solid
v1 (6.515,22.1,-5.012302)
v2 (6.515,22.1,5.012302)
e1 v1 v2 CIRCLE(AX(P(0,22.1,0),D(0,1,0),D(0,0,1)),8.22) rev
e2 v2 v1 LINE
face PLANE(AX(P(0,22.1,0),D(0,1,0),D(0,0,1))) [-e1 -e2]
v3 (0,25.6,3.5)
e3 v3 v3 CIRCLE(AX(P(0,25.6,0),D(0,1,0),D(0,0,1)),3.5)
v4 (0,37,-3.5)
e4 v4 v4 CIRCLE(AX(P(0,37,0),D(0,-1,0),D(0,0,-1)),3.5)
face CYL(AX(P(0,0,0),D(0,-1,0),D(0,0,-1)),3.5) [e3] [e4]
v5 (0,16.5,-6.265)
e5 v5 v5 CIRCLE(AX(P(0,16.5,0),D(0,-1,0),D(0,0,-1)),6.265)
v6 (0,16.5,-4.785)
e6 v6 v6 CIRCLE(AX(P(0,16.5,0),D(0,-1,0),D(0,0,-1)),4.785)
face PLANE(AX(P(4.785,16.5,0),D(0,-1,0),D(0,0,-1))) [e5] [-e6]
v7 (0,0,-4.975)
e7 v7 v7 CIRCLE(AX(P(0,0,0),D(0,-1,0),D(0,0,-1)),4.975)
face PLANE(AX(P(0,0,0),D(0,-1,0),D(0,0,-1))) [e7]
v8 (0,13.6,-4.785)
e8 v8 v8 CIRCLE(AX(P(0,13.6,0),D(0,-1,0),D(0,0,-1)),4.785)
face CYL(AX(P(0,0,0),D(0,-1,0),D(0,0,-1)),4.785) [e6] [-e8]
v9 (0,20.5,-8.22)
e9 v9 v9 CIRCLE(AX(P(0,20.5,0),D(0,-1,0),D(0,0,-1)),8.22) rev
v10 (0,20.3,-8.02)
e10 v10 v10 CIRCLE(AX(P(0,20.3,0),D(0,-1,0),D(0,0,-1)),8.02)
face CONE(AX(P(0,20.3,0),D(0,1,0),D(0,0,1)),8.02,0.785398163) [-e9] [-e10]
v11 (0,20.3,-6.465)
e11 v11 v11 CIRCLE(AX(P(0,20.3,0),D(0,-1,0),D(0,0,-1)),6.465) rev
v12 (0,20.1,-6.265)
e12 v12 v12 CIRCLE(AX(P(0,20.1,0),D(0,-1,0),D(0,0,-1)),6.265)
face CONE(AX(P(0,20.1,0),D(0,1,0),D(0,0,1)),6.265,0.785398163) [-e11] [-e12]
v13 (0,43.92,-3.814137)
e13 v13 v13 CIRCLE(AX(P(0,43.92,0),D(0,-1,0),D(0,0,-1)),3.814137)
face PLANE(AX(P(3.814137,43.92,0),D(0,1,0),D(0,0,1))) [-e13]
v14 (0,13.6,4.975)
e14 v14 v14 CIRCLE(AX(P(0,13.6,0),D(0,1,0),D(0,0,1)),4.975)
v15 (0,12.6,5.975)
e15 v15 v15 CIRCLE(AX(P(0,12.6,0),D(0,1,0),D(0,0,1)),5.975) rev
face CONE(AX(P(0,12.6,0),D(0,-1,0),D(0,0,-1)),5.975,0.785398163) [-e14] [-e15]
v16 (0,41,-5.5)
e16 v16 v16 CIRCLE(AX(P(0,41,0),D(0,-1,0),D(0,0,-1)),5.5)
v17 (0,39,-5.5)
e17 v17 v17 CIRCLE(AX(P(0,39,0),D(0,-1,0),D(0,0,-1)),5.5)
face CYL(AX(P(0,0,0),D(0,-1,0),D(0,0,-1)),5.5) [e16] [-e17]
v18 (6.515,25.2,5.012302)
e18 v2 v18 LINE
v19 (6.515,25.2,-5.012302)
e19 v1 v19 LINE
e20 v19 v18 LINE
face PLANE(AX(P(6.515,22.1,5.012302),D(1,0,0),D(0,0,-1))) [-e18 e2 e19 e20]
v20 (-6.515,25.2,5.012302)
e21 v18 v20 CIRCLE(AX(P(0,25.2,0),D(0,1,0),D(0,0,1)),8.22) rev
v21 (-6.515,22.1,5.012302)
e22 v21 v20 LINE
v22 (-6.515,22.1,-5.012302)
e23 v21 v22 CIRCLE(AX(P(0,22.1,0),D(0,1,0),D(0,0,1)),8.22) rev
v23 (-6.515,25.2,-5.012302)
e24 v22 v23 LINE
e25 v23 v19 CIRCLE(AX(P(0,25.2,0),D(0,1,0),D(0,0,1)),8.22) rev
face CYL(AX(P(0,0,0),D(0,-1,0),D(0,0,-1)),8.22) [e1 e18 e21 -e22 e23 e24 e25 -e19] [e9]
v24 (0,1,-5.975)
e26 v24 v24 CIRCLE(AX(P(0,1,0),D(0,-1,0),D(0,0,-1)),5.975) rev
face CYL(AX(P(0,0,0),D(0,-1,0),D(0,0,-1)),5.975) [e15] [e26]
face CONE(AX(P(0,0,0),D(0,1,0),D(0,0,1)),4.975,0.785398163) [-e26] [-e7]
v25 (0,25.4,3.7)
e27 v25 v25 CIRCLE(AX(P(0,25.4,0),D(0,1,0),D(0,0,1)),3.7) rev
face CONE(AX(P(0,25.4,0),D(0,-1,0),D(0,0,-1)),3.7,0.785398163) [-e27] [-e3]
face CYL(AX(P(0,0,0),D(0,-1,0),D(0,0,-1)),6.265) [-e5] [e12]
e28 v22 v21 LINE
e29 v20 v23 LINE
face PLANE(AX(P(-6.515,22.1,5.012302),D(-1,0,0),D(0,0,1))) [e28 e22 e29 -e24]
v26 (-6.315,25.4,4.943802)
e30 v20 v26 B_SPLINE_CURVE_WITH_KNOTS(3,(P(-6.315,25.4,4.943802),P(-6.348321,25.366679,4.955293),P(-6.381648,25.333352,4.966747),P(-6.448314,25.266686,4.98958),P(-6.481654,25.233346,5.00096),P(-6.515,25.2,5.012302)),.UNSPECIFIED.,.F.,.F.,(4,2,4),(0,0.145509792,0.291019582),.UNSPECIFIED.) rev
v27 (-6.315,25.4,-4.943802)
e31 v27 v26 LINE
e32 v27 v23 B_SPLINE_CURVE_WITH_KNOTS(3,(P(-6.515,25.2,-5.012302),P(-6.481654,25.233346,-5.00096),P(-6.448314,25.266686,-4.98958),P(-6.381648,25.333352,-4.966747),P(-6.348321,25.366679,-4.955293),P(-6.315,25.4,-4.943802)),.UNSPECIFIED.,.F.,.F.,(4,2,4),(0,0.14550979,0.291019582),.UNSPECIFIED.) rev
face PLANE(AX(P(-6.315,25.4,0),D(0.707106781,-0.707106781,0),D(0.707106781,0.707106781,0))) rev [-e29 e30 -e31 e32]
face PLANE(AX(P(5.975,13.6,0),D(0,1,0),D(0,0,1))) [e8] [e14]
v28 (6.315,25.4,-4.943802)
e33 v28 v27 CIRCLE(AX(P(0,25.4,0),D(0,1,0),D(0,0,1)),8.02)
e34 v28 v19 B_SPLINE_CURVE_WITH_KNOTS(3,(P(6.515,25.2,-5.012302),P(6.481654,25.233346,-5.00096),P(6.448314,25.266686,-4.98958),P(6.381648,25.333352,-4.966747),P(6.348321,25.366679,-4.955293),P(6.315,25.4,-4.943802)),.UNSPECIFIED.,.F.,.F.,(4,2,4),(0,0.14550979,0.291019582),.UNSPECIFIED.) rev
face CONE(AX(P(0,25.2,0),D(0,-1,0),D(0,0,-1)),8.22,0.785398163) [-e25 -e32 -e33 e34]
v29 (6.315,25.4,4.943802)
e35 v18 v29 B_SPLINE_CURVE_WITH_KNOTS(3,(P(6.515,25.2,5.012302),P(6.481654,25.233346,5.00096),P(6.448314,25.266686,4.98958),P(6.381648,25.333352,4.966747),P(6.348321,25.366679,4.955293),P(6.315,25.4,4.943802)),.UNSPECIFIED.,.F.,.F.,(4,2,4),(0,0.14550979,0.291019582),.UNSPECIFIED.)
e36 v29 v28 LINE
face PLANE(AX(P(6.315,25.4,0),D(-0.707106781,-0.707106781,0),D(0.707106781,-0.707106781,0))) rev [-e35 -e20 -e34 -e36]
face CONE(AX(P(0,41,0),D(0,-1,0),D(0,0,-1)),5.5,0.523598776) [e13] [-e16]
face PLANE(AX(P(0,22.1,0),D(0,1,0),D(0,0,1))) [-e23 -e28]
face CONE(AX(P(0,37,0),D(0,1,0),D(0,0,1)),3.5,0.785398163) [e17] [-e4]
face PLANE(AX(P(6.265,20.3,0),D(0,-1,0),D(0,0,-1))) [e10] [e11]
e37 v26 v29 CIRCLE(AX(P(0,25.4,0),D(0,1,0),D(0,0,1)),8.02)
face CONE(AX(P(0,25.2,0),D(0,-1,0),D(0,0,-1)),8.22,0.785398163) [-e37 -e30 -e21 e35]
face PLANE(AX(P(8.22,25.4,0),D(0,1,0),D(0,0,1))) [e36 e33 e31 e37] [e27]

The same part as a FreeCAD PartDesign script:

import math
import FreeCAD as App
import Part
import Sketcher
from FreeCAD import Vector
Q = App.Units.Quantity


def edges_at(feature, points):
    """Names of the edges that pass closest to the given points."""
    edges = feature.Shape.Edges
    near = lambda p: min(range(len(edges)), key=lambda i: edges[i].distToShape(Part.Vertex(*p))[0])
    return sorted({f"Edge{near(p) + 1}" for p in points})

doc = App.newDocument("Part")
body = doc.addObject("PartDesign::Body", "Body")

# Sketch on XY plane
sketch1 = doc.addObject("Sketcher::SketchObject", "Sketch")
body.addObject(sketch1)
sketch1.AttachmentSupport = (doc.XY_Plane, [""])
sketch1.MapMode = "FlatFace"
sketch1.addGeometry(Part.LineSegment(Vector(0, 0, 0), Vector(5.975, 0, 0)), False)
sketch1.addGeometry(Part.LineSegment(Vector(5.975, 0, 0), Vector(5.975, 13.6, 0)), False)
sketch1.addGeometry(Part.LineSegment(Vector(5.975, 13.6, 0), Vector(4.785, 13.6, 0)), False)
sketch1.addGeometry(Part.LineSegment(Vector(4.785, 13.6, 0), Vector(4.785, 16.5, 0)), False)
sketch1.addGeometry(Part.LineSegment(Vector(4.785, 16.5, 0), Vector(6.265, 16.5, 0)), False)
sketch1.addGeometry(Part.LineSegment(Vector(6.265, 16.5, 0), Vector(6.265, 20.3, 0)), False)
sketch1.addGeometry(Part.LineSegment(Vector(6.265, 20.3, 0), Vector(8.22, 20.3, 0)), False)
sketch1.addGeometry(Part.LineSegment(Vector(8.22, 20.3, 0), Vector(8.22, 25.4, 0)), False)
sketch1.addGeometry(Part.LineSegment(Vector(8.22, 25.4, 0), Vector(3.5, 25.4, 0)), False)
sketch1.addGeometry(Part.LineSegment(Vector(3.5, 25.4, 0), Vector(3.5, 37, 0)), False)
sketch1.addGeometry(Part.LineSegment(Vector(3.5, 37, 0), Vector(5.5, 39, 0)), False)
sketch1.addGeometry(Part.LineSegment(Vector(5.5, 39, 0), Vector(5.5, 41, 0)), False)
sketch1.addGeometry(Part.LineSegment(Vector(5.5, 41, 0), Vector(3.814137, 43.92, 0)), False)
sketch1.addGeometry(Part.LineSegment(Vector(3.814137, 43.92, 0), Vector(0, 43.92, 0)), False)
sketch1.addGeometry(Part.LineSegment(Vector(0, 43.92, 0), Vector(0, 0, 0)), False)
sketch1.addConstraint(Sketcher.Constraint("Coincident", 0, 2, 1, 1))
sketch1.addConstraint(Sketcher.Constraint("Coincident", 1, 2, 2, 1))
sketch1.addConstraint(Sketcher.Constraint("Coincident", 2, 2, 3, 1))
sketch1.addConstraint(Sketcher.Constraint("Coincident", 3, 2, 4, 1))
sketch1.addConstraint(Sketcher.Constraint("Coincident", 4, 2, 5, 1))
sketch1.addConstraint(Sketcher.Constraint("Coincident", 5, 2, 6, 1))
sketch1.addConstraint(Sketcher.Constraint("Coincident", 6, 2, 7, 1))
sketch1.addConstraint(Sketcher.Constraint("Coincident", 7, 2, 8, 1))
sketch1.addConstraint(Sketcher.Constraint("Coincident", 8, 2, 9, 1))
sketch1.addConstraint(Sketcher.Constraint("Coincident", 9, 2, 10, 1))
sketch1.addConstraint(Sketcher.Constraint("Coincident", 10, 2, 11, 1))
sketch1.addConstraint(Sketcher.Constraint("Coincident", 11, 2, 12, 1))
sketch1.addConstraint(Sketcher.Constraint("Coincident", 12, 2, 13, 1))
sketch1.addConstraint(Sketcher.Constraint("Coincident", 13, 2, 14, 1))
sketch1.addConstraint(Sketcher.Constraint("Coincident", 14, 2, 0, 1))
sketch1.addConstraint(Sketcher.Constraint("Horizontal", 0))
sketch1.addConstraint(Sketcher.Constraint("Vertical", 1))
sketch1.addConstraint(Sketcher.Constraint("Horizontal", 2))
sketch1.addConstraint(Sketcher.Constraint("Vertical", 3))
sketch1.addConstraint(Sketcher.Constraint("Horizontal", 4))
sketch1.addConstraint(Sketcher.Constraint("Vertical", 5))
sketch1.addConstraint(Sketcher.Constraint("Horizontal", 6))
sketch1.addConstraint(Sketcher.Constraint("Vertical", 7))
sketch1.addConstraint(Sketcher.Constraint("Horizontal", 8))
sketch1.addConstraint(Sketcher.Constraint("Vertical", 9))
sketch1.addConstraint(Sketcher.Constraint("Vertical", 11))
sketch1.addConstraint(Sketcher.Constraint("Horizontal", 13))
sketch1.addConstraint(Sketcher.Constraint("Vertical", 14))
sketch1.addConstraint(Sketcher.Constraint("Coincident", 14, 2, -1, 1))
sketch1.addConstraint(Sketcher.Constraint("DistanceY", 11, 1, 11, 2, Q("2 mm")))
sketch1.addConstraint(Sketcher.Constraint("Angle", 10, Q("45 deg")))
sketch1.addConstraint(Sketcher.Constraint("Angle", 12, Q("120 deg")))
sketch1.addConstraint(Sketcher.Constraint("DistanceY", 1, 1, 1, 2, Q("13.6 mm")))
sketch1.addConstraint(Sketcher.Constraint("DistanceY", 3, 1, 3, 2, Q("2.9 mm")))
sketch1.addConstraint(Sketcher.Constraint("DistanceY", 5, 1, 5, 2, Q("3.8 mm")))
sketch1.addConstraint(Sketcher.Constraint("DistanceY", 7, 1, 7, 2, Q("5.1 mm")))
sketch1.addConstraint(Sketcher.Constraint("DistanceY", 9, 1, 9, 2, Q("11.6 mm")))
sketch1.addConstraint(Sketcher.Constraint("DistanceY", -1, 1, 10, 2, Q("39 mm")))
sketch1.addConstraint(Sketcher.Constraint("DistanceX", 2, 2, 2, 1, Q("1.19 mm")))
sketch1.addConstraint(Sketcher.Constraint("DistanceX", 4, 1, 4, 2, Q("1.48 mm")))
sketch1.addConstraint(Sketcher.Constraint("DistanceX", 8, 2, 8, 1, Q("4.72 mm")))
sketch1.addConstraint(Sketcher.Constraint("DistanceY", 14, 2, 14, 1, Q("43.92 mm")))
sketch1.addConstraint(Sketcher.Constraint("DistanceX", -1, 1, 8, 2, Q("3.5 mm")))
sketch1.addConstraint(Sketcher.Constraint("DistanceX", 0, 1, 0, 2, Q("5.975 mm")))
revolution = doc.addObject("PartDesign::Revolution", "Revolution")
body.addObject(revolution)
revolution.Profile = sketch1
revolution.ReferenceAxis = (sketch1, ["V_Axis"])
revolution.Angle = 360
doc.recompute()

chamfer = doc.addObject("PartDesign::Chamfer", "Chamfer")
body.addObject(chamfer)
chamfer.Base = (revolution, edges_at(revolution, [(0, 13.6, 5.975), (0, 0, 5.975)]))
chamfer.Size = 1

# Sketch on XZ plane
sketch2 = doc.addObject("Sketcher::SketchObject", "Sketch001")
body.addObject(sketch2)
sketch2.AttachmentSupport = (doc.XZ_Plane, [""])
sketch2.MapMode = "FlatFace"
sketch2.AttachmentOffset = App.Placement(Vector(0, 0, -25.4), App.Rotation())
sketch2.addGeometry(Part.LineSegment(Vector(-14.189, -14.189, 0), Vector(-14.189, 14.189, 0)), False)
sketch2.addGeometry(Part.LineSegment(Vector(-14.189, 14.189, 0), Vector(14.189, 14.189, 0)), False)
sketch2.addGeometry(Part.LineSegment(Vector(14.189, 14.189, 0), Vector(14.189, -14.189, 0)), False)
sketch2.addGeometry(Part.LineSegment(Vector(14.189, -14.189, 0), Vector(-14.189, -14.189, 0)), False)
sketch2.addGeometry(Part.LineSegment(Vector(6.515, -5.012302, 0), Vector(6.515, 5.012302, 0)), False)
sketch2.addGeometry(Part.ArcOfCircle(Part.Circle(Vector(0, 0, 0), Vector(0, 0, 1), 8.22), math.radians(37.572812), math.radians(142.427188)), False)
sketch2.addGeometry(Part.LineSegment(Vector(-6.515, 5.012302, 0), Vector(-6.515, -5.012302, 0)), False)
sketch2.addGeometry(Part.ArcOfCircle(Part.Circle(Vector(0, 0, 0), Vector(0, 0, 1), 8.22), math.radians(-142.427188), math.radians(-37.572812)), False)
sketch2.addConstraint(Sketcher.Constraint("Coincident", 0, 2, 1, 1))
sketch2.addConstraint(Sketcher.Constraint("Coincident", 1, 2, 2, 1))
sketch2.addConstraint(Sketcher.Constraint("Coincident", 2, 2, 3, 1))
sketch2.addConstraint(Sketcher.Constraint("Coincident", 3, 2, 0, 1))
sketch2.addConstraint(Sketcher.Constraint("Coincident", 4, 2, 5, 1))
sketch2.addConstraint(Sketcher.Constraint("Coincident", 5, 2, 6, 1))
sketch2.addConstraint(Sketcher.Constraint("Coincident", 6, 2, 7, 1))
sketch2.addConstraint(Sketcher.Constraint("Coincident", 7, 2, 4, 1))
sketch2.addConstraint(Sketcher.Constraint("Vertical", 0))
sketch2.addConstraint(Sketcher.Constraint("Horizontal", 1))
sketch2.addConstraint(Sketcher.Constraint("Vertical", 2))
sketch2.addConstraint(Sketcher.Constraint("Horizontal", 3))
sketch2.addConstraint(Sketcher.Constraint("Vertical", 4))
sketch2.addConstraint(Sketcher.Constraint("Vertical", 6))
sketch2.addConstraint(Sketcher.Constraint("Coincident", 5, 3, -1, 1))
sketch2.addConstraint(Sketcher.Constraint("Coincident", 7, 3, -1, 1))
sketch2.addConstraint(Sketcher.Constraint("Equal", 5, 7))
sketch2.addConstraint(Sketcher.Constraint("Symmetric", 0, 2, 2, 2, -1, 1))
sketch2.addConstraint(Sketcher.Constraint("Horizontal", 4, 2, 5, 2))
sketch2.addConstraint(Sketcher.Constraint("Equal", 3, 0))
sketch2.addConstraint(Sketcher.Constraint("Radius", 5, Q("8.22 mm")))
sketch2.addConstraint(Sketcher.Constraint("DistanceX", 1, 1, 1, 2, Q("28.378 mm")))
sketch2.addConstraint(Sketcher.Constraint("DistanceX", 5, 2, 4, 2, Q("13.03 mm")))
pocket1 = doc.addObject("PartDesign::Pocket", "Pocket")
body.addObject(pocket1)
pocket1.Profile = sketch2
pocket1.Length = 3.3
pocket1.Reversed = True
doc.recompute()

chamfer2 = doc.addObject("PartDesign::Chamfer", "Chamfer001")
body.addObject(chamfer2)
chamfer2.Base = (pocket1, edges_at(pocket1, [
    (0, 25.4, 3.5),
    (0, 20.3, 8.22),
    (0, 20.3, 6.265),
    (0, 25.4, 8.22),
    (-3.631, 25.4, -7.375),
    (6.515, 25.4, 0),
    (-6.515, 25.4, 0),
]))
chamfer2.Size = 0.2

doc.recompute()
